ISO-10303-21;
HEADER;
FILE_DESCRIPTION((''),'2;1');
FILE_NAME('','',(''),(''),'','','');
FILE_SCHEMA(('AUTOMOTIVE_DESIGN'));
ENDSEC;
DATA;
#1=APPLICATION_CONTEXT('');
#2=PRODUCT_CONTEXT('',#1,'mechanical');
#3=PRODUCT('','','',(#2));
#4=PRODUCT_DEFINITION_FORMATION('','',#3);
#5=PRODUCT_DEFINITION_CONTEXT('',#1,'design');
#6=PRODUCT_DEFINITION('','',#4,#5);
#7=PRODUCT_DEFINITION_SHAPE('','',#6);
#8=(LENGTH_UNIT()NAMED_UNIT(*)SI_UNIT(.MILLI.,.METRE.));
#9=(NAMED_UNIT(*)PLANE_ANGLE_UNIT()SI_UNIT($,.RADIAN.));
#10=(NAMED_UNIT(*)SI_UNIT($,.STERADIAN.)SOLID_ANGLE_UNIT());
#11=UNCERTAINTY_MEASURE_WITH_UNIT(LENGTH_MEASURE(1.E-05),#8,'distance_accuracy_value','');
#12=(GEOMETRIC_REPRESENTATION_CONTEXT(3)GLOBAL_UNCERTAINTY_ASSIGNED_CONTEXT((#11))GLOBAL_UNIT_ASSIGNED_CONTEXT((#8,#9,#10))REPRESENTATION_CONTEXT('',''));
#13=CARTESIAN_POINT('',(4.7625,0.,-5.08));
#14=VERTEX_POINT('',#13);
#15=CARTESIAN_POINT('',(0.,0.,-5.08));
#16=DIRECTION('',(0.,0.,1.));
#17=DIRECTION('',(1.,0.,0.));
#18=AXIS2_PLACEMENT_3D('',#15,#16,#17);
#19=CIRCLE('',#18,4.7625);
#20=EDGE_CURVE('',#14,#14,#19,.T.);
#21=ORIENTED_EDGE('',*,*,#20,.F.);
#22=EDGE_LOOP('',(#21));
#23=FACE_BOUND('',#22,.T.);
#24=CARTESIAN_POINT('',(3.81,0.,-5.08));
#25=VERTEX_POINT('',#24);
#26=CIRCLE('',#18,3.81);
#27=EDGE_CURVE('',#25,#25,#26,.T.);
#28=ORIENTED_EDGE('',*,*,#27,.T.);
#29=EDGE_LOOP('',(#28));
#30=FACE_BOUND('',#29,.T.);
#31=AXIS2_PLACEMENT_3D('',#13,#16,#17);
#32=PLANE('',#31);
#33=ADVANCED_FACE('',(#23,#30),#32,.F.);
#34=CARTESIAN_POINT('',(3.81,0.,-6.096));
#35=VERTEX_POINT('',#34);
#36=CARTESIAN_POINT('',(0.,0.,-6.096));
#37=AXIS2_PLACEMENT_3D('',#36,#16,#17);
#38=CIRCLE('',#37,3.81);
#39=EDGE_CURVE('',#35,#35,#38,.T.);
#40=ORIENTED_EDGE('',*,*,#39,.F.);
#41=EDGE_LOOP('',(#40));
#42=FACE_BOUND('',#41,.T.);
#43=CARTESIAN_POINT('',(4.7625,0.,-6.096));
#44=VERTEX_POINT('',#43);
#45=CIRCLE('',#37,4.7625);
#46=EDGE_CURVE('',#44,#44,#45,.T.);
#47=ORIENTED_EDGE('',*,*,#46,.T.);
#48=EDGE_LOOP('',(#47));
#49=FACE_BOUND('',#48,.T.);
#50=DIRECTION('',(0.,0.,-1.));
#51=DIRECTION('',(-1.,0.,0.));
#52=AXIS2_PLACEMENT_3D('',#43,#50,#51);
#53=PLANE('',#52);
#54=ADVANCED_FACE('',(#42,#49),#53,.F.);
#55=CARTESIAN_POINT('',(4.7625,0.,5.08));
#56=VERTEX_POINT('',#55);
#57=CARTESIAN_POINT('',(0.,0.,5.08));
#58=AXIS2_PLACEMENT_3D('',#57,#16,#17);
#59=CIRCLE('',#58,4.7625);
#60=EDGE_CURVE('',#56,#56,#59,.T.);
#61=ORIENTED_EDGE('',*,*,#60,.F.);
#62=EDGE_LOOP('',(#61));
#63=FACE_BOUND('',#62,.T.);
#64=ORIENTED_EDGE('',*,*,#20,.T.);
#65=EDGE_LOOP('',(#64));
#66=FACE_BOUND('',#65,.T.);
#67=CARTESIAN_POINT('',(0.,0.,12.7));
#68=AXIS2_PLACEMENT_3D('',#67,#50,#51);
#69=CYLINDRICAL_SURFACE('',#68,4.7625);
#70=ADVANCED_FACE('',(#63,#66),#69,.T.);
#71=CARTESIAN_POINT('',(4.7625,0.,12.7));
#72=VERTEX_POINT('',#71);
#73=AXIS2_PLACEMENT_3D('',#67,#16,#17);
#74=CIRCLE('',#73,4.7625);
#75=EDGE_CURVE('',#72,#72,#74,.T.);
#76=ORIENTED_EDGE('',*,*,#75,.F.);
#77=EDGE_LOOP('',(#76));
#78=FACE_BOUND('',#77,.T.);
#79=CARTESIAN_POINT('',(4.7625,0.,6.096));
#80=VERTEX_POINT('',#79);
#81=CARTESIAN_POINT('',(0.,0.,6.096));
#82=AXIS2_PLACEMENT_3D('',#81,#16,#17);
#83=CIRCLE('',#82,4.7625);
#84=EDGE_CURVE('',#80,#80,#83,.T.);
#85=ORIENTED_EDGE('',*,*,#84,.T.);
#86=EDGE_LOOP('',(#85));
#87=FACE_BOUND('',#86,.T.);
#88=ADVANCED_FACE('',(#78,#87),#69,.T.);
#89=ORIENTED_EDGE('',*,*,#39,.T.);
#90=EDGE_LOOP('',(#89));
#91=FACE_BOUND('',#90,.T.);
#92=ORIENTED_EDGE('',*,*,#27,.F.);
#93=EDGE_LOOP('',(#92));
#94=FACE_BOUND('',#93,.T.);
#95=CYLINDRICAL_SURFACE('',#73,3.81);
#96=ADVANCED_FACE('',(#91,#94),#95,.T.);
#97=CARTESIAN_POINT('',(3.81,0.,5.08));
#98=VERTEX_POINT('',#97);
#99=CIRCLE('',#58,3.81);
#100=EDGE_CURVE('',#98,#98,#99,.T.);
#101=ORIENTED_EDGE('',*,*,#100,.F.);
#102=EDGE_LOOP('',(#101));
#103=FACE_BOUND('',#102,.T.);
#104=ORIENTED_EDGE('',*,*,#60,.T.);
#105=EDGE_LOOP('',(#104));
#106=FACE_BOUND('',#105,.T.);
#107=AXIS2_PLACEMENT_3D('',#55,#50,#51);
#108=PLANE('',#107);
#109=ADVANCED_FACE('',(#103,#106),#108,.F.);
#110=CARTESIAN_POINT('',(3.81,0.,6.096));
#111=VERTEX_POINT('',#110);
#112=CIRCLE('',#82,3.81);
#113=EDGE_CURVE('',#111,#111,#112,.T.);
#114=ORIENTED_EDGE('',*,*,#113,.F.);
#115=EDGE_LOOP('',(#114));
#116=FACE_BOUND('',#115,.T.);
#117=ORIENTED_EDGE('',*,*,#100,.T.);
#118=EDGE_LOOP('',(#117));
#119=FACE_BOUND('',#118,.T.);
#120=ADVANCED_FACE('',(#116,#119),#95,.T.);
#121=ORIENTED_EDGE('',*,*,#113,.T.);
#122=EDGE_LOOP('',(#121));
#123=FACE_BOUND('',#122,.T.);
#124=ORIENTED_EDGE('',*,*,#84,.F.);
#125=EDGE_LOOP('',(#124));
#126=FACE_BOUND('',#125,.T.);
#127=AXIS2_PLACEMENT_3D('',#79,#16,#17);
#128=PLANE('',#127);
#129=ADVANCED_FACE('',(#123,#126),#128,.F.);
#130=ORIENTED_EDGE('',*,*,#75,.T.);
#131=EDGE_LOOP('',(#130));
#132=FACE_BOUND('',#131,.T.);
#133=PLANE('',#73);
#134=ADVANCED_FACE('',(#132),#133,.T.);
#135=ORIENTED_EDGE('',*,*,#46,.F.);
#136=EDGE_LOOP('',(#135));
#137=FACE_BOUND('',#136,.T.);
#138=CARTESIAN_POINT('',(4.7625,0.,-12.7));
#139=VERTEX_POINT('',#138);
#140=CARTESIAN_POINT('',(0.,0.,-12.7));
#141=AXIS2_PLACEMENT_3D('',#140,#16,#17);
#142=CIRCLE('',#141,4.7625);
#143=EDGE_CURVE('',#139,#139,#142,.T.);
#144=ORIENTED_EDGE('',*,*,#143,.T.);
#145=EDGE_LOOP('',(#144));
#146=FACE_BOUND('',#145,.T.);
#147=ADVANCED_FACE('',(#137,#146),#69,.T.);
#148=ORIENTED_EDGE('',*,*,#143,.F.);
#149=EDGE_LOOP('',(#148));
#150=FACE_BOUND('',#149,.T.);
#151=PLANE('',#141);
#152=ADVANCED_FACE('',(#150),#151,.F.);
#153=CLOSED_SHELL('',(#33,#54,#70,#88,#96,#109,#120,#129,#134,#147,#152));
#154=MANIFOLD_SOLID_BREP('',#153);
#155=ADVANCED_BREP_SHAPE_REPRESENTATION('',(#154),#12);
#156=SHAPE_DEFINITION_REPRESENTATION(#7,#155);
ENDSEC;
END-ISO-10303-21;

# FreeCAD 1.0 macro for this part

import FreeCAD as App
import Part
import Sketcher
from FreeCAD import Vector
Q = App.Units.Quantity

doc = App.newDocument("Part")
params = doc.addObject("Spreadsheet::Sheet", "Params")
for row, (alias, value) in enumerate([
    ("sketch1_diameter", "0.375 in"),
    ("pad1_length", "1 in"),
    ("sketch2_height", "0.04 in"),
    ("groove_angle", "360 deg"),
], start=1):
    params.set(f"A{row}", alias)
    params.set(f"B{row}", "=" + value)
    params.setAlias(f"B{row}", alias)

body = doc.addObject("PartDesign::Body", "Body")

sketch1 = body.newObject("Sketcher::SketchObject", "Sketch")
sketch1.AttachmentSupport = (doc.getObject("XY_Plane"), [""])
sketch1.MapMode = "FlatFace"
sketch1.addGeometry(Part.Circle(Vector(0, 0, 0), Vector(0, 0, 1), 4.8), False)
sketch1.addConstraint([
    Sketcher.Constraint("Coincident", 0, 3, -1, 1),
    Sketcher.Constraint("Diameter", 0, Q("0.375 in")),
])
sketch1.setExpression("Constraints[1]", "Params.sketch1_diameter")
pad1 = body.newObject("PartDesign::Pad", "Pad")
pad1.Profile = sketch1
pad1.setExpression("Length", "Params.pad1_length")
pad1.Midplane = True

sketch2 = body.newObject("Sketcher::SketchObject", "Sketch001")
sketch2.AttachmentSupport = (doc.getObject("XZ_Plane"), [""])
sketch2.MapMode = "FlatFace"
sketch2.addGeometry([
    Part.LineSegment(Vector(3.8, -6.1, 0), Vector(3.8, -5.1, 0)),
    Part.LineSegment(Vector(3.8, -5.1, 0), Vector(4.8, -5.1, 0)),
    Part.LineSegment(Vector(4.8, -5.1, 0), Vector(4.8, -6.1, 0)),
    Part.LineSegment(Vector(4.8, -6.1, 0), Vector(3.8, -6.1, 0)),
    Part.LineSegment(Vector(3.8, 5.1, 0), Vector(3.8, 6.1, 0)),
    Part.LineSegment(Vector(3.8, 6.1, 0), Vector(4.8, 6.1, 0)),
    Part.LineSegment(Vector(4.8, 6.1, 0), Vector(4.8, 5.1, 0)),
    Part.LineSegment(Vector(4.8, 5.1, 0), Vector(3.8, 5.1, 0)),
], False)
sketch2.addConstraint([
    Sketcher.Constraint("Coincident", 0, 2, 1, 1),
    Sketcher.Constraint("Coincident", 1, 2, 2, 1),
    Sketcher.Constraint("Coincident", 2, 2, 3, 1),
    Sketcher.Constraint("Coincident", 3, 2, 0, 1),
    Sketcher.Constraint("Coincident", 4, 2, 5, 1),
    Sketcher.Constraint("Coincident", 5, 2, 6, 1),
    Sketcher.Constraint("Coincident", 6, 2, 7, 1),
    Sketcher.Constraint("Coincident", 7, 2, 4, 1),
    Sketcher.Constraint("Vertical", 0),
    Sketcher.Constraint("Horizontal", 1),
    Sketcher.Constraint("Vertical", 2),
    Sketcher.Constraint("Horizontal", 3),
    Sketcher.Constraint("Vertical", 4),
    Sketcher.Constraint("Horizontal", 5),
    Sketcher.Constraint("Vertical", 6),
    Sketcher.Constraint("Horizontal", 7),
    Sketcher.Constraint("Symmetric", 3, 2, 4, 2, -1),
    Sketcher.Constraint("Symmetric", 1, 2, 6, 2, -1),
    Sketcher.Constraint("DistanceY", 0, 1, 0, 2, Q("0.04 in")),
    Sketcher.Constraint("DistanceY", 0, 2, -1, 1, Q("0.2 in")),
    Sketcher.Constraint("DistanceX", -1, 1, 0, 2, Q("0.15 in")),
    Sketcher.Constraint("DistanceX", 1, 1, 1, 2, Q("0.0375 in")),
])
sketch2.setExpression("Constraints[18]", "Params.sketch2_height")
groove = body.newObject("PartDesign::Groove", "Groove")
groove.Profile = sketch2
groove.ReferenceAxis = (sketch2, ["V_Axis"])
groove.setExpression("Angle", "Params.groove_angle")

doc.recompute()
